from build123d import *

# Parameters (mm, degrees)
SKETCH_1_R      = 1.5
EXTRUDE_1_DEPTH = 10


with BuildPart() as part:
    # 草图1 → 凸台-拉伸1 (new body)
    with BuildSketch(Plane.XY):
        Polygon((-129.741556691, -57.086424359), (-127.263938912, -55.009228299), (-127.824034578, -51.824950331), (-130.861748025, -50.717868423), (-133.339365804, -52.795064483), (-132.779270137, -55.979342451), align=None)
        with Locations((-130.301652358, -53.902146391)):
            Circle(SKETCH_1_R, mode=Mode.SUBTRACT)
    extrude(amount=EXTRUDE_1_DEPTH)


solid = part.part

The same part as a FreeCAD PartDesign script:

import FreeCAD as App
import Part
import Sketcher
Q = App.Units.Quantity


def add_polygon(sketch, points):
    """Adds a closed chain of lines whose ends are joined by coincident constraints."""
    first, n = sketch.GeometryCount, len(points)
    for a, b in zip(points, points[1:] + points[:1]):
        sketch.addGeometry(Part.LineSegment(App.Vector(*a, 0), App.Vector(*b, 0)), False)
    for i in range(n):
        sketch.addConstraint(Sketcher.Constraint("Coincident", first + i, 2, first + (i + 1) % n, 1))

doc = App.newDocument("Part")
params = doc.addObject("Spreadsheet::Sheet", "Params")
for row, (alias, value) in enumerate([
    ("sketch1_diameter", "3 mm"),
    ("pad1_length", "10 mm"),
], start=1):
    params.set(f"A{row}", alias)
    params.set(f"B{row}", "=" + value)
    params.setAlias(f"B{row}", alias)

body = doc.addObject("PartDesign::Body", "Body")

sketch1 = body.newObject("Sketcher::SketchObject", "Sketch")
sketch1.AttachmentSupport = (doc.getObject("XY_Plane"), [""])
sketch1.MapMode = "FlatFace"
add_polygon(sketch1, [(-129.7, -57.1), (-127.3, -55), (-127.8, -51.8), (-130.9, -50.7), (-133.3, -52.8), (-132.8, -56)])
sketch1.addGeometry(Part.Circle(App.Vector(-130.3, -53.9, 0), App.Vector(0, 0, 1), 1.5), False)
sketch1.addConstraint(Sketcher.Constraint("Parallel", 0, 3))
sketch1.addConstraint(Sketcher.Constraint("Parallel", 1, 4))
sketch1.addConstraint(Sketcher.Constraint("Parallel", 2, 5))
sketch1.addConstraint(Sketcher.Constraint("Equal", 0, 1))
sketch1.addConstraint(Sketcher.Constraint("Equal", 1, 2))
sketch1.addConstraint(Sketcher.Constraint("Equal", 2, 3))
sketch1.addConstraint(Sketcher.Constraint("Diameter", 6, Q("3 mm")))
sketch1.addConstraint(Sketcher.Constraint("Distance", 0, Q("3.233162 mm")))
sketch1.addConstraint(Sketcher.Constraint("DistanceX", 0, 2, -1, 1, Q("127.263939 mm")))
sketch1.addConstraint(Sketcher.Constraint("DistanceY", 0, 2, -1, 1, Q("55.009228 mm")))
sketch1.addConstraint(Sketcher.Constraint("DistanceY", 1, 2, -1, 1, Q("51.82495 mm")))
sketch1.addConstraint(Sketcher.Constraint("DistanceX", 2, 2, -1, 1, Q("130.861748 mm")))
sketch1.addConstraint(Sketcher.Constraint("DistanceX", 4, 2, -1, 1, Q("132.77927 mm")))
sketch1.addConstraint(Sketcher.Constraint("DistanceY", 0, 2, 6, 3, Q("1.107082 mm")))
sketch1.addConstraint(Sketcher.Constraint("DistanceX", 6, 3, -1, 1, Q("130.301652 mm")))
sketch1.setExpression("Constraints[12]", "Params.sketch1_diameter")
pad1 = body.newObject("PartDesign::Pad", "Pad")
pad1.Profile = sketch1
pad1.setExpression("Length", "Params.pad1_length")

doc.recompute()
